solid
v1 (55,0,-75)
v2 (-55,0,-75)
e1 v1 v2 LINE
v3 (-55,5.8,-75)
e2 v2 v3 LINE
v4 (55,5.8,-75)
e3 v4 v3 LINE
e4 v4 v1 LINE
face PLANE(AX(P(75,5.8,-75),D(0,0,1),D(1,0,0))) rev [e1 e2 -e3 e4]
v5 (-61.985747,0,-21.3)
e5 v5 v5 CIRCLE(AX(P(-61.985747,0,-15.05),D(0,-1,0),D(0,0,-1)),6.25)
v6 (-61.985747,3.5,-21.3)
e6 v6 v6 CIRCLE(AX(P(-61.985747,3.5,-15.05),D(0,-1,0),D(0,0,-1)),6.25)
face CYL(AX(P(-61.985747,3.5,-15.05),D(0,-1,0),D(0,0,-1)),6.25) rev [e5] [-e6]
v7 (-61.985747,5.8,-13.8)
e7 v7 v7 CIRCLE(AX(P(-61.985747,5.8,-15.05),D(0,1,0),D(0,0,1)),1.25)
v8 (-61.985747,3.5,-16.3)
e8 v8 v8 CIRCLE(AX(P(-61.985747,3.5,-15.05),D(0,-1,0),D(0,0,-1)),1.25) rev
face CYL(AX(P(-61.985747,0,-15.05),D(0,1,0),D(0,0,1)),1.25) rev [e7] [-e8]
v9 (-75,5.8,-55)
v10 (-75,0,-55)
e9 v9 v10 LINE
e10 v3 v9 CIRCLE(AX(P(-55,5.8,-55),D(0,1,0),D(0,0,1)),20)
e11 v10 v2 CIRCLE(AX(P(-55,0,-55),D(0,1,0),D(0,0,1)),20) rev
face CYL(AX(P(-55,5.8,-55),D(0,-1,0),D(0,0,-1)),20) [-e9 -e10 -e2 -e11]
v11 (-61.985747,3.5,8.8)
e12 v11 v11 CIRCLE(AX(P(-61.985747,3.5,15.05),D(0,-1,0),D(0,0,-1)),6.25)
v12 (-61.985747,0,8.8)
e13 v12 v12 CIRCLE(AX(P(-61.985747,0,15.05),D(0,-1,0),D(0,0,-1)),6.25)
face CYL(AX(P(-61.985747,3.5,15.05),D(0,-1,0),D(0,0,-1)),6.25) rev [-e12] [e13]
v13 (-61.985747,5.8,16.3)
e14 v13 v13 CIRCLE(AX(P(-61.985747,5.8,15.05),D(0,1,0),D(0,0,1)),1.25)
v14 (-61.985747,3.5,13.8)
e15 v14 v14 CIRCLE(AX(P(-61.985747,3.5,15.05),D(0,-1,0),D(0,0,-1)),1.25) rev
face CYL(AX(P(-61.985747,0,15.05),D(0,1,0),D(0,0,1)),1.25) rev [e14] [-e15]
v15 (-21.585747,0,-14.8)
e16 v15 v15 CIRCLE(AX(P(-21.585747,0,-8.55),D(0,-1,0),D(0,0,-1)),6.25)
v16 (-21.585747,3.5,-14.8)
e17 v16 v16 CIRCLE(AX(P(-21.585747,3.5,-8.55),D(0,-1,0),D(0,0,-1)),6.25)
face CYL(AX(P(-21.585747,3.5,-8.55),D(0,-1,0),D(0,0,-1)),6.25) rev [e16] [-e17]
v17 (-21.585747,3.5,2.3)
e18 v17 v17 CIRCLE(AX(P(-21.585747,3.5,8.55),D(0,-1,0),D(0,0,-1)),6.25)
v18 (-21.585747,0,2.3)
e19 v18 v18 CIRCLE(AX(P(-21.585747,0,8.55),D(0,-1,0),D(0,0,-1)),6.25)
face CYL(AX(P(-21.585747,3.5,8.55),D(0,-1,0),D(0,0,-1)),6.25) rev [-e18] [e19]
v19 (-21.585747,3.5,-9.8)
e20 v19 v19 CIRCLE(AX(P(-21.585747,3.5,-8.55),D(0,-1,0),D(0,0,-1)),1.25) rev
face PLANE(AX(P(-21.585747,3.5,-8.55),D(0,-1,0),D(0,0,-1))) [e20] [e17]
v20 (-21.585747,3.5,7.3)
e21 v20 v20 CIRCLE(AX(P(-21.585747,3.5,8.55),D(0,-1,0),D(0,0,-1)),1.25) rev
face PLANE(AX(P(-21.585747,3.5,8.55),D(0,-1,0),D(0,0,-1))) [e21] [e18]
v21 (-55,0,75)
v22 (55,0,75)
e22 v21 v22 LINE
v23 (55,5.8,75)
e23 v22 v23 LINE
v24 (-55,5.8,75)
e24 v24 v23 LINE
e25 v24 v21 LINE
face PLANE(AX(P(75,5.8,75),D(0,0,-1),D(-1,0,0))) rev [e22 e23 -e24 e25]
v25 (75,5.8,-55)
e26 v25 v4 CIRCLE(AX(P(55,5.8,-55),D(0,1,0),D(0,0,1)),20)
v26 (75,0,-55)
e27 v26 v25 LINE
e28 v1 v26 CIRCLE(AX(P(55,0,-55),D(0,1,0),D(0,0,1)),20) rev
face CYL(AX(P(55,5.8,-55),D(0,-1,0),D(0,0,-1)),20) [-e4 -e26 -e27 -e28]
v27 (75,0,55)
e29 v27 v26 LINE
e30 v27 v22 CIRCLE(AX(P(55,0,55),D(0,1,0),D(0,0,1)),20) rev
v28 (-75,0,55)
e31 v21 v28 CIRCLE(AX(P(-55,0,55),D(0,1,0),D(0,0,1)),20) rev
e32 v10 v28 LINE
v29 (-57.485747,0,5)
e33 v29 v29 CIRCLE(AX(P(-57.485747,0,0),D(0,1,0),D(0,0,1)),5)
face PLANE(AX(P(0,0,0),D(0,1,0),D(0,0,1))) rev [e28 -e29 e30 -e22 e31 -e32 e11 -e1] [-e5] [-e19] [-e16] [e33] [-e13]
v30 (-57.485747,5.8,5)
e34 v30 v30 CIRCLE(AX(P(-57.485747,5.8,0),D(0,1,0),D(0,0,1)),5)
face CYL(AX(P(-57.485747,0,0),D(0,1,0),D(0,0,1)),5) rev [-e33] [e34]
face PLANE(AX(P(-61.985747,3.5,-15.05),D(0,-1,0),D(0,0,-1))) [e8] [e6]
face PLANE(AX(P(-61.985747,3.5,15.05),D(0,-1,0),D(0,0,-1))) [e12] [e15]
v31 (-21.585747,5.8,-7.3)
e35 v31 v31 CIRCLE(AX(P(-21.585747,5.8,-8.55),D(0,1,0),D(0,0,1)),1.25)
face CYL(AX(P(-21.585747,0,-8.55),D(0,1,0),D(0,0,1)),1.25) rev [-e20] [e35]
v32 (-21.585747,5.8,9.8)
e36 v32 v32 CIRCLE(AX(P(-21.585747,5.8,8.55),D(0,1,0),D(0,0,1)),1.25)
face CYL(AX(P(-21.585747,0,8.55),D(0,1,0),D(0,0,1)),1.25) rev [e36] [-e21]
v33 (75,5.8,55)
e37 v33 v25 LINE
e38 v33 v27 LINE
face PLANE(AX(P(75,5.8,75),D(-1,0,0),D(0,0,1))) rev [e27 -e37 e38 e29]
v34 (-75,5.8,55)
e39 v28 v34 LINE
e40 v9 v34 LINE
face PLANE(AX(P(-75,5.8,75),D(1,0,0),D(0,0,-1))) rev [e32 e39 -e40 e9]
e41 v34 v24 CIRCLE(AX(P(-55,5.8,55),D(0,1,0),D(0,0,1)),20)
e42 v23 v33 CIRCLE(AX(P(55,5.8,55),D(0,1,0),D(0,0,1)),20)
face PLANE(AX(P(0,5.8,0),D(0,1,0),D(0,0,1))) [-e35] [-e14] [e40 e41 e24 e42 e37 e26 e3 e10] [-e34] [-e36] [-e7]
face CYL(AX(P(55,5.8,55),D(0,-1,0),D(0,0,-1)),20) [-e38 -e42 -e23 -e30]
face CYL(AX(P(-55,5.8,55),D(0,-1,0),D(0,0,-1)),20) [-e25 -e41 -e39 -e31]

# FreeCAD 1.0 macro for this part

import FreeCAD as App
import Part
import Sketcher

V = App.Vector
Q = App.Units.Quantity


def edges_at(feature, points):
    """Names of the edges that pass closest to the given points."""
    edges = feature.Shape.Edges
    near = lambda p: min(range(len(edges)), key=lambda i: edges[i].distToShape(Part.Vertex(*p))[0])
    return sorted({f"Edge{near(p) + 1}" for p in points})


def add_polygon(sketch, points):
    """Adds a closed chain of lines whose ends are joined by coincident constraints."""
    first, n = sketch.GeometryCount, len(points)
    for a, b in zip(points, points[1:] + points[:1]):
        sketch.addGeometry(Part.LineSegment(App.Vector(*a, 0), App.Vector(*b, 0)), False)
    for i in range(n):
        sketch.addConstraint(Sketcher.Constraint("Coincident", first + i, 2, first + (i + 1) % n, 1))

doc = App.newDocument("Part")
body = doc.addObject("PartDesign::Body", "Body")

# Sketch on XZ plane
sketch1 = body.newObject("Sketcher::SketchObject", "Sketch")
sketch1.AttachmentSupport = (doc.getObject("XZ_Plane"), [""])
sketch1.MapMode = "FlatFace"
add_polygon(sketch1, [(-75, -75), (-75, 75), (75, 75), (75, -75)])  # lines 0-3
sketch1.addConstraint([
    Sketcher.Constraint("Vertical", 0),
    Sketcher.Constraint("Horizontal", 1),
    Sketcher.Constraint("Vertical", 2),
    Sketcher.Constraint("Horizontal", 3),
    Sketcher.Constraint("Symmetric", 0, 2, 2, 2, -1, 1),
    Sketcher.Constraint("Equal", 3, 0),
    Sketcher.Constraint("DistanceX", 1, 1, 1, 2, Q("150 mm")),
])
pad1 = body.newObject("PartDesign::Pad", "Pad")
pad1.Profile = sketch1
pad1.Length = 5.8
pad1.Reversed = True

# Sketch on XZ plane
sketch2 = body.newObject("Sketcher::SketchObject", "Sketch001")
sketch2.AttachmentSupport = (doc.getObject("XZ_Plane"), [""])
sketch2.MapMode = "FlatFace"
sketch2.AttachmentOffset = App.Placement(V(0, 0, -5.8), App.Rotation())
sketch2.addGeometry([
    Part.Circle(V(-61.985747, 15.05, 0), V(0, 0, 1), 1.25),  # 0
    Part.Circle(V(-61.985747, -15.05, 0), V(0, 0, 1), 1.25),  # 1
    Part.Circle(V(-21.585747, -8.55, 0), V(0, 0, 1), 1.25),  # 2
    Part.Circle(V(-21.585747, 8.55, 0), V(0, 0, 1), 1.25),  # 3
    Part.Circle(V(-57.485747, 0, 0), V(0, 0, 1), 5),  # 4
], False)
sketch2.addConstraint([
    Sketcher.Constraint("Equal", 0, 1),
    Sketcher.Constraint("Equal", 1, 2),
    Sketcher.Constraint("Equal", 2, 3),
    Sketcher.Constraint("Symmetric", 0, 3, 1, 3, -1),
    Sketcher.Constraint("Symmetric", 2, 3, 3, 3, -1),
    Sketcher.Constraint("PointOnObject", 4, 3, -1),
    Sketcher.Constraint("Diameter", 4, Q("10 mm")),
    Sketcher.Constraint("Diameter", 0, Q("2.5 mm")),
    Sketcher.Constraint("DistanceY", 1, 3, 0, 3, Q("30.1 mm")),
    Sketcher.Constraint("DistanceX", 1, 3, 2, 3, Q("40.4 mm")),
    Sketcher.Constraint("DistanceY", 1, 3, 2, 3, Q("6.5 mm")),
    Sketcher.Constraint("DistanceX", 0, 3, 4, 3, Q("4.5 mm")),
    Sketcher.Constraint("DistanceX", 0, 3, -1, 1, Q("61.985747 mm")),
])
pocket1 = body.newObject("PartDesign::Pocket", "Pocket")
pocket1.Profile = sketch2
pocket1.Type = "ThroughAll"
pocket1.Midplane = True
doc.recompute()

fillet = body.newObject("PartDesign::Fillet", "Fillet")
fillet.Base = (pocket1, edges_at(pocket1, [
    (-75, 2.9, -75),
    (75, 2.9, -75),
    (75, 2.9, 75),
    (-75, 2.9, 75),
]))
fillet.Radius = 20

# Sketch on XZ plane
sketch3 = body.newObject("Sketcher::SketchObject", "Sketch002")
sketch3.AttachmentSupport = (doc.getObject("XZ_Plane"), [""])
sketch3.MapMode = "FlatFace"
sketch3.addGeometry([
    Part.Circle(V(-21.585747, -8.55, 0), V(0, 0, 1), 6.25),
    Part.Circle(V(-21.585747, 8.55, 0), V(0, 0, 1), 6.25),
    Part.Circle(V(-61.985747, -15.05, 0), V(0, 0, 1), 6.25),
    Part.Circle(V(-61.985747, 15.05, 0), V(0, 0, 1), 6.25),
], False)
sketch3.addConstraint([
    Sketcher.Constraint("Equal", 0, 1),
    Sketcher.Constraint("Equal", 1, 2),
    Sketcher.Constraint("Equal", 2, 3),
    Sketcher.Constraint("Symmetric", 0, 3, 1, 3, -1),
    Sketcher.Constraint("Symmetric", 2, 3, 3, 3, -1),
    Sketcher.Constraint("Diameter", 0, Q("12.5 mm")),
    Sketcher.Constraint("DistanceY", 0, 3, 1, 3, Q("17.1 mm")),
    Sketcher.Constraint("DistanceX", 2, 3, 0, 3, Q("40.4 mm")),
    Sketcher.Constraint("DistanceY", 2, 3, 0, 3, Q("6.5 mm")),
    Sketcher.Constraint("DistanceX", 0, 3, -1, 1, Q("21.585747 mm")),
])
pocket2 = body.newObject("PartDesign::Pocket", "Pocket001")
pocket2.Profile = sketch3
pocket2.Length = 3.5

doc.recompute()
